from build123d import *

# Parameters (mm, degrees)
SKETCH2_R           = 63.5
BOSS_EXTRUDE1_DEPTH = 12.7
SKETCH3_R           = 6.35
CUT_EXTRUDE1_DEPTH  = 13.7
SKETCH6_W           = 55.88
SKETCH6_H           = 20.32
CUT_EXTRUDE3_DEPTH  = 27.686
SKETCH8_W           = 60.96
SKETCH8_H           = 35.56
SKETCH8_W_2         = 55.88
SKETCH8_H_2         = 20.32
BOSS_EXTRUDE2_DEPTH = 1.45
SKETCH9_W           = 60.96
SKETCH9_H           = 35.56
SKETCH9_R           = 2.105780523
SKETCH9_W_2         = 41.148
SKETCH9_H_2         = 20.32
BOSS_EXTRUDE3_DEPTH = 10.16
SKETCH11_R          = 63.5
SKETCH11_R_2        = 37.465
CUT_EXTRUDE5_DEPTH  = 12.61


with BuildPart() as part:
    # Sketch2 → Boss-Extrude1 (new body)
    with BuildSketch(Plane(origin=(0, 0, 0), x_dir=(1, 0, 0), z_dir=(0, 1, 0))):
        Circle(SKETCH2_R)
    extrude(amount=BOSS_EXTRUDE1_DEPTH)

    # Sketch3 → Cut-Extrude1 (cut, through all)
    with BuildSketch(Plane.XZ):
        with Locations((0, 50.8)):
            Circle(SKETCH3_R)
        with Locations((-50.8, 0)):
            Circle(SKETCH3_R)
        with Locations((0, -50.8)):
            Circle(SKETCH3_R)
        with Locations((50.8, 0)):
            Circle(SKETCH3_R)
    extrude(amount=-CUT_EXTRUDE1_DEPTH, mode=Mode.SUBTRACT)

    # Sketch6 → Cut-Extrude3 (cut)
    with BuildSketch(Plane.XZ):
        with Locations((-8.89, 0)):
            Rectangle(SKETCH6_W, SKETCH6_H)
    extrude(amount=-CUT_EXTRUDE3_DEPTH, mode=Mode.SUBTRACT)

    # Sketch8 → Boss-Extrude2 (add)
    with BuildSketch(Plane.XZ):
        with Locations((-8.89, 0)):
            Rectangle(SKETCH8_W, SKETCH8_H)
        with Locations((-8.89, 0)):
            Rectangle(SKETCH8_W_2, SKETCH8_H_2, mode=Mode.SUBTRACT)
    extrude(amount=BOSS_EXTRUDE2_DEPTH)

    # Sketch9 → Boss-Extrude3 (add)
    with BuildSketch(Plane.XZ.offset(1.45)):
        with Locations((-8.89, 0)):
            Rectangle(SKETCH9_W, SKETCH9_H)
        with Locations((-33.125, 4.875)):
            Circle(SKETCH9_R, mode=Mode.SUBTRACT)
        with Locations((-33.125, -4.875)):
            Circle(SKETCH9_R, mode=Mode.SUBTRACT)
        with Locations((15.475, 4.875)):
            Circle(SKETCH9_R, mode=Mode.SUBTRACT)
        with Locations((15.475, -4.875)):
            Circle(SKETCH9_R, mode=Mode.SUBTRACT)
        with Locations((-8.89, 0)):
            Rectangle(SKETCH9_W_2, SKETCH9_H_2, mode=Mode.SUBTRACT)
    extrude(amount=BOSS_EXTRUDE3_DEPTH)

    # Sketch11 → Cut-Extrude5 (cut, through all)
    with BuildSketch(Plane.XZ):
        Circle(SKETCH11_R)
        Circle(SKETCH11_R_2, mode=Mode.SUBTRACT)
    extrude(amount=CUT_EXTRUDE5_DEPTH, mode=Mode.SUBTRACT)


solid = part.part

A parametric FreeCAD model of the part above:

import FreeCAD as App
import Part
import Sketcher
from FreeCAD import Vector
Q = App.Units.Quantity


def add_polygon(sketch, points):
    """Adds a closed chain of lines whose ends are joined by coincident constraints."""
    first, n = sketch.GeometryCount, len(points)
    for a, b in zip(points, points[1:] + points[:1]):
        sketch.addGeometry(Part.LineSegment(App.Vector(*a, 0), App.Vector(*b, 0)), False)
    for i in range(n):
        sketch.addConstraint(Sketcher.Constraint("Coincident", first + i, 2, first + (i + 1) % n, 1))

doc = App.newDocument("Part")
params = doc.addObject("Spreadsheet::Sheet", "Params")
for row, (alias, value) in enumerate([
    ("sketch1_diameter", "5 in"),
    ("pad1_length", "0.5 in"),
    ("sketch2_diameter", "0.5 in"),
    ("sketch3_width", "2.2 in"),
    ("sketch3_height", "0.8 in"),
    ("pocket2_length", "1.09 in"),
    ("sketch4_width", "2.4 in"),
    ("sketch4_width2", "2.2 in"),
    ("sketch4_height", "1.4 in"),
    ("sketch4_height2", "0.8 in"),
    ("pad2_length", "1.45 mm"),
    ("sketch5_width", "2.4 in"),
    ("sketch5_height", "1.4 in"),
    ("sketch5_height2", "0.8 in"),
    ("sketch5_width2", "1.62 in"),
    ("pad3_length", "0.4 in"),
    ("sketch6_diameter", "5 in"),
    ("sketch6_diameter2", "2.95 in"),
], start=1):
    params.set(f"A{row}", alias)
    params.set(f"B{row}", "=" + value)
    params.setAlias(f"B{row}", alias)

body = doc.addObject("PartDesign::Body", "Body")

# Sketch on XZ plane
sketch1 = body.newObject("Sketcher::SketchObject", "Sketch")
sketch1.AttachmentSupport = (doc.getObject("XZ_Plane"), [""])
sketch1.MapMode = "FlatFace"
sketch1.addGeometry(Part.Circle(Vector(0, 0, 0), Vector(0, 0, 1), 64), False)
sketch1.addConstraint(Sketcher.Constraint("Coincident", 0, 3, -1, 1))
sketch1.addConstraint(Sketcher.Constraint("Diameter", 0, Q("5 in")))
sketch1.setExpression("Constraints[1]", "Params.sketch1_diameter")
pad1 = body.newObject("PartDesign::Pad", "Pad")
pad1.Profile = sketch1
pad1.setExpression("Length", "Params.pad1_length")
pad1.Reversed = True

# Sketch on XZ plane
sketch2 = body.newObject("Sketcher::SketchObject", "Sketch001")
sketch2.AttachmentSupport = (doc.getObject("XZ_Plane"), [""])
sketch2.MapMode = "FlatFace"
sketch2.addGeometry(Part.Circle(Vector(0, 51, 0), Vector(0, 0, 1), 6), False)
sketch2.addGeometry(Part.Circle(Vector(-51, 0, 0), Vector(0, 0, 1), 6), False)
sketch2.addGeometry(Part.Circle(Vector(0, -51, 0), Vector(0, 0, 1), 6), False)
sketch2.addGeometry(Part.Circle(Vector(51, 0, 0), Vector(0, 0, 1), 6), False)
sketch2.addConstraint(Sketcher.Constraint("Equal", 0, 1))
sketch2.addConstraint(Sketcher.Constraint("Equal", 1, 2))
sketch2.addConstraint(Sketcher.Constraint("Equal", 2, 3))
sketch2.addConstraint(Sketcher.Constraint("Symmetric", 0, 3, 2, 3, -1, 1))
sketch2.addConstraint(Sketcher.Constraint("Symmetric", 1, 3, 3, 3, -1, 1))
sketch2.addConstraint(Sketcher.Constraint("PointOnObject", 0, 3, -2))
sketch2.addConstraint(Sketcher.Constraint("PointOnObject", 1, 3, -1))
sketch2.addConstraint(Sketcher.Constraint("Diameter", 0, Q("0.5 in")))
sketch2.addConstraint(Sketcher.Constraint("DistanceY", -1, 1, 0, 3, Q("2 in")))
sketch2.addConstraint(Sketcher.Constraint("DistanceX", 1, 3, -1, 1, Q("2 in")))
sketch2.setExpression("Constraints[7]", "Params.sketch2_diameter")
pocket1 = body.newObject("PartDesign::Pocket", "Pocket")
pocket1.Profile = sketch2
pocket1.Type = "ThroughAll"

# Sketch on XZ plane
sketch3 = body.newObject("Sketcher::SketchObject", "Sketch002")
sketch3.AttachmentSupport = (doc.getObject("XZ_Plane"), [""])
sketch3.MapMode = "FlatFace"
add_polygon(sketch3, [(-37, 10), (-37, -10), (19, -10), (19, 10)])  # lines 0-3
sketch3.addConstraint(Sketcher.Constraint("Vertical", 0))
sketch3.addConstraint(Sketcher.Constraint("Horizontal", 1))
sketch3.addConstraint(Sketcher.Constraint("Vertical", 2))
sketch3.addConstraint(Sketcher.Constraint("Horizontal", 3))
sketch3.addConstraint(Sketcher.Constraint("DistanceX", 1, 1, 1, 2, Q("2.2 in")))
sketch3.addConstraint(Sketcher.Constraint("DistanceY", 0, 2, 0, 1, Q("0.8 in")))
sketch3.addConstraint(Sketcher.Constraint("DistanceY", 0, 2, -1, 1, Q("0.4 in")))
sketch3.addConstraint(Sketcher.Constraint("DistanceX", 0, 2, -1, 1, Q("1.45 in")))
sketch3.setExpression("Constraints[8]", "Params.sketch3_width")
sketch3.setExpression("Constraints[9]", "Params.sketch3_height")
pocket2 = body.newObject("PartDesign::Pocket", "Pocket001")
pocket2.Profile = sketch3
pocket2.setExpression("Length", "Params.pocket2_length")

# Sketch on XZ plane
sketch4 = body.newObject("Sketcher::SketchObject", "Sketch003")
sketch4.AttachmentSupport = (doc.getObject("XZ_Plane"), [""])
sketch4.MapMode = "FlatFace"
add_polygon(sketch4, [(-39, 18), (-39, -18), (22, -18), (22, 18)])  # lines 0-3
add_polygon(sketch4, [(19, -10), (-37, -10), (-37, 10), (19, 10)])  # lines 4-7
sketch4.addConstraint(Sketcher.Constraint("Vertical", 0))
sketch4.addConstraint(Sketcher.Constraint("Horizontal", 1))
sketch4.addConstraint(Sketcher.Constraint("Vertical", 2))
sketch4.addConstraint(Sketcher.Constraint("Horizontal", 3))
sketch4.addConstraint(Sketcher.Constraint("Horizontal", 4))
sketch4.addConstraint(Sketcher.Constraint("Vertical", 5))
sketch4.addConstraint(Sketcher.Constraint("Horizontal", 6))
sketch4.addConstraint(Sketcher.Constraint("Vertical", 7))
sketch4.addConstraint(Sketcher.Constraint("DistanceX", 1, 1, 1, 2, Q("2.4 in")))
sketch4.addConstraint(Sketcher.Constraint("DistanceX", 4, 2, 4, 1, Q("2.2 in")))
sketch4.addConstraint(Sketcher.Constraint("DistanceY", 0, 2, 0, 1, Q("1.4 in")))
sketch4.addConstraint(Sketcher.Constraint("DistanceY", 5, 1, 5, 2, Q("0.8 in")))
sketch4.addConstraint(Sketcher.Constraint("DistanceY", 0, 2, -1, 1, Q("0.7 in")))
sketch4.addConstraint(Sketcher.Constraint("DistanceY", 4, 2, -1, 1, Q("0.4 in")))
sketch4.addConstraint(Sketcher.Constraint("DistanceX", 0, 2, 4, 2, Q("0.1 in")))
sketch4.addConstraint(Sketcher.Constraint("DistanceX", 0, 2, -1, 1, Q("1.55 in")))
sketch4.setExpression("Constraints[16]", "Params.sketch4_width")
sketch4.setExpression("Constraints[17]", "Params.sketch4_width2")
sketch4.setExpression("Constraints[18]", "Params.sketch4_height")
sketch4.setExpression("Constraints[19]", "Params.sketch4_height2")
pad2 = body.newObject("PartDesign::Pad", "Pad001")
pad2.Profile = sketch4
pad2.setExpression("Length", "Params.pad2_length")

# Sketch on XZ plane
sketch5 = body.newObject("Sketcher::SketchObject", "Sketch004")
sketch5.AttachmentSupport = (doc.getObject("XZ_Plane"), [""])
sketch5.MapMode = "FlatFace"
sketch5.AttachmentOffset = App.Placement(Vector(0, 0, 1.45), App.Rotation())
add_polygon(sketch5, [(-39.4, 17.8), (-39.4, -17.8), (21.6, -17.8), (21.6, 17.8)])  # lines 0-3
sketch5.addGeometry(Part.Circle(Vector(-33.1, -4.9, 0), Vector(0, 0, 1), 2.1), False)  # 4
add_polygon(sketch5, [(11.7, -10.2), (-29.5, -10.2), (-29.5, 10.2), (11.7, 10.2)])  # lines 5-8
sketch5.addGeometry(Part.Circle(Vector(15.5, -4.9, 0), Vector(0, 0, 1), 2.1), False)  # 9
sketch5.addGeometry(Part.Circle(Vector(-33.1, 4.9, 0), Vector(0, 0, 1), 2.1), False)  # 10
sketch5.addGeometry(Part.Circle(Vector(15.5, 4.9, 0), Vector(0, 0, 1), 2.1), False)  # 11
sketch5.addConstraint(Sketcher.Constraint("Vertical", 0))
sketch5.addConstraint(Sketcher.Constraint("Horizontal", 1))
sketch5.addConstraint(Sketcher.Constraint("Vertical", 2))
sketch5.addConstraint(Sketcher.Constraint("Horizontal", 3))
sketch5.addConstraint(Sketcher.Constraint("Horizontal", 5))
sketch5.addConstraint(Sketcher.Constraint("Vertical", 6))
sketch5.addConstraint(Sketcher.Constraint("Horizontal", 7))
sketch5.addConstraint(Sketcher.Constraint("Vertical", 8))
sketch5.addConstraint(Sketcher.Constraint("Equal", 4, 9))
sketch5.addConstraint(Sketcher.Constraint("Equal", 9, 10))
sketch5.addConstraint(Sketcher.Constraint("Equal", 10, 11))
sketch5.addConstraint(Sketcher.Constraint("Symmetric", 4, 3, 10, 3, -1))
sketch5.addConstraint(Sketcher.Constraint("Symmetric", 9, 3, 11, 3, -1))
sketch5.addConstraint(Sketcher.Constraint("Horizontal", 4, 3, 9, 3))
sketch5.addConstraint(Sketcher.Constraint("DistanceX", 1, 1, 1, 2, Q("2.4 in")))
sketch5.addConstraint(Sketcher.Constraint("DistanceY", 0, 2, 0, 1, Q("1.4 in")))
sketch5.addConstraint(Sketcher.Constraint("DistanceY", 6, 1, 6, 2, Q("0.8 in")))
sketch5.addConstraint(Sketcher.Constraint("DistanceX", 5, 2, 5, 1, Q("1.62 in")))
sketch5.addConstraint(Sketcher.Constraint("DistanceY", 0, 2, -1, 1, Q("0.7 in")))
sketch5.addConstraint(Sketcher.Constraint("DistanceY", 5, 2, -1, 1, Q("0.4 in")))
sketch5.addConstraint(Sketcher.Constraint("DistanceX", 0, 2, -1, 1, Q("1.55 in")))
sketch5.addConstraint(Sketcher.Constraint("DistanceX", 5, 2, -1, 1, Q("1.16 in")))
sketch5.addConstraint(Sketcher.Constraint("Diameter", 4, Q("4.211561 mm")))
sketch5.addConstraint(Sketcher.Constraint("DistanceX", 4, 3, -1, 1, Q("33.125 mm")))
sketch5.addConstraint(Sketcher.Constraint("DistanceY", 4, 3, -1, 1, Q("4.875 mm")))
sketch5.addConstraint(Sketcher.Constraint("DistanceX", -1, 1, 9, 3, Q("15.475 mm")))
sketch5.setExpression("Constraints[22]", "Params.sketch5_width")
sketch5.setExpression("Constraints[23]", "Params.sketch5_height")
sketch5.setExpression("Constraints[24]", "Params.sketch5_height2")
sketch5.setExpression("Constraints[25]", "Params.sketch5_width2")
pad3 = body.newObject("PartDesign::Pad", "Pad002")
pad3.Profile = sketch5
pad3.setExpression("Length", "Params.pad3_length")

# Sketch on XZ plane
sketch6 = body.newObject("Sketcher::SketchObject", "Sketch005")
sketch6.AttachmentSupport = (doc.getObject("XZ_Plane"), [""])
sketch6.MapMode = "FlatFace"
sketch6.addGeometry(Part.Circle(Vector(0, 0, 0), Vector(0, 0, 1), 64), False)
sketch6.addGeometry(Part.Circle(Vector(0, 0, 0), Vector(0, 0, 1), 37), False)
sketch6.addConstraint(Sketcher.Constraint("Coincident", 0, 3, -1, 1))
sketch6.addConstraint(Sketcher.Constraint("Coincident", 1, 3, -1, 1))
sketch6.addConstraint(Sketcher.Constraint("Diameter", 0, Q("5 in")))
sketch6.addConstraint(Sketcher.Constraint("Diameter", 1, Q("2.95 in")))
sketch6.setExpression("Constraints[2]", "Params.sketch6_diameter")
sketch6.setExpression("Constraints[3]", "Params.sketch6_diameter2")
pocket3 = body.newObject("PartDesign::Pocket", "Pocket002")
pocket3.Profile = sketch6
pocket3.Type = "ThroughAll"
pocket3.Reversed = True

doc.recompute()
